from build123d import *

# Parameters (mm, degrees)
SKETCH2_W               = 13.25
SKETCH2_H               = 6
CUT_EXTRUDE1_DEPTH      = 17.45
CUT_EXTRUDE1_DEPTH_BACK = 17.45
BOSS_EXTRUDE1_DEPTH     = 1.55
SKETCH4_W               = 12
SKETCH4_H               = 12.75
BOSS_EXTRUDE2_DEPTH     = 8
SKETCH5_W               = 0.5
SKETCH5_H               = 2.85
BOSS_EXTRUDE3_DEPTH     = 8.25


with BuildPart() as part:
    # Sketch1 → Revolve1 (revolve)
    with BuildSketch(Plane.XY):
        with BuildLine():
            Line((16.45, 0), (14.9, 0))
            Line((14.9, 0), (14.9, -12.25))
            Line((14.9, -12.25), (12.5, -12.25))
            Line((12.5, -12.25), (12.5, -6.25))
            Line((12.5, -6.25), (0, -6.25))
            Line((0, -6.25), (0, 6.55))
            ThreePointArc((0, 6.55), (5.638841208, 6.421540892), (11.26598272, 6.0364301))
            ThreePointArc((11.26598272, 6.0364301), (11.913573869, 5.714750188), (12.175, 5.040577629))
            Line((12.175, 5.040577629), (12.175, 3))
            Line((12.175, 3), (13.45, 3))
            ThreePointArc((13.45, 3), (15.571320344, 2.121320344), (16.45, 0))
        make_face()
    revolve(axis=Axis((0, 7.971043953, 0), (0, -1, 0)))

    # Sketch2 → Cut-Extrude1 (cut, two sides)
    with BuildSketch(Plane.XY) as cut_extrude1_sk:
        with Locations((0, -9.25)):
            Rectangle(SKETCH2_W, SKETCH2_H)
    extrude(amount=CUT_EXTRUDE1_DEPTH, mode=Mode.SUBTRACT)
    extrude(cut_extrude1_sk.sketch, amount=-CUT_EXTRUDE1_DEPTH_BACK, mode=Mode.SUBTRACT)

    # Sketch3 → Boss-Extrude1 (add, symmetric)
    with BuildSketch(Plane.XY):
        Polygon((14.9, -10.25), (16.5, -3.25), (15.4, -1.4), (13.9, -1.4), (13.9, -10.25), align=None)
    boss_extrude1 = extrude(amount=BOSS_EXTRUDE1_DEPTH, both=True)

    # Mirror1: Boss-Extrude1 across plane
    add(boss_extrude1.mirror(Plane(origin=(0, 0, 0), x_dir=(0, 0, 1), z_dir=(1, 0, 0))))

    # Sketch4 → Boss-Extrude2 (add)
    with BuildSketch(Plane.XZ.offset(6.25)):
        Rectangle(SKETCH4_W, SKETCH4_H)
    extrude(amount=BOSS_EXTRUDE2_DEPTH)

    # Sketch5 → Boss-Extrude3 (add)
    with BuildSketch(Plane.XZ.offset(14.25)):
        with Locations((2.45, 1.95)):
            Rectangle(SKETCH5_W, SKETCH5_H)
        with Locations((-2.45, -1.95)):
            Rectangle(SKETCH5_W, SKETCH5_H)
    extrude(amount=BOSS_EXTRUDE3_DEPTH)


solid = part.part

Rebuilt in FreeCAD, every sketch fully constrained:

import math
import FreeCAD as App
import Part
import Sketcher
Q = App.Units.Quantity


def add_polygon(sketch, points):
    """Adds a closed chain of lines whose ends are joined by coincident constraints."""
    first, n = sketch.GeometryCount, len(points)
    for a, b in zip(points, points[1:] + points[:1]):
        sketch.addGeometry(Part.LineSegment(App.Vector(*a, 0), App.Vector(*b, 0)), False)
    for i in range(n):
        sketch.addConstraint(Sketcher.Constraint("Coincident", first + i, 2, first + (i + 1) % n, 1))

doc = App.newDocument("Part")
body = doc.addObject("PartDesign::Body", "Body")

# Sketch on XY plane
sketch1 = body.newObject("Sketcher::SketchObject", "Sketch")
sketch1.AttachmentSupport = (doc.getObject("XY_Plane"), [""])
sketch1.MapMode = "FlatFace"
sketch1.addGeometry(Part.LineSegment(App.Vector(14.9, 0, 0), App.Vector(16.4, 0, 0)), False)
sketch1.addGeometry(Part.ArcOfCircle(Part.Circle(App.Vector(13.5, 0, 0), App.Vector(0, 0, 1), 3), math.radians(0), math.radians(90)), False)
sketch1.addGeometry(Part.LineSegment(App.Vector(13.4, 3, 0), App.Vector(12.2, 3, 0)), False)
sketch1.addGeometry(Part.LineSegment(App.Vector(12.2, 3, 0), App.Vector(12.2, 5, 0)), False)
sketch1.addGeometry(Part.ArcOfCircle(Part.Circle(App.Vector(11.2, 5, 0), App.Vector(0, 0, 1), 1), math.radians(0), math.radians(85)), False)
sketch1.addGeometry(Part.ArcOfCircle(Part.Circle(App.Vector(0, -117.3, 0), App.Vector(0, 0, 1), 123.8), math.radians(84.78), math.radians(90)), False)
sketch1.addGeometry(Part.LineSegment(App.Vector(0, 6.5, 0), App.Vector(0, -6.2, 0)), False)
sketch1.addGeometry(Part.LineSegment(App.Vector(0, -6.2, 0), App.Vector(12.5, -6.2, 0)), False)
sketch1.addGeometry(Part.LineSegment(App.Vector(12.5, -6.2, 0), App.Vector(12.5, -12.2, 0)), False)
sketch1.addGeometry(Part.LineSegment(App.Vector(12.5, -12.2, 0), App.Vector(14.9, -12.2, 0)), False)
sketch1.addGeometry(Part.LineSegment(App.Vector(14.9, -12.2, 0), App.Vector(14.9, 0, 0)), False)
sketch1.addConstraint(Sketcher.Constraint("Coincident", 0, 2, 1, 1))
sketch1.addConstraint(Sketcher.Constraint("Tangent", 1, 2, 2, 1))
sketch1.addConstraint(Sketcher.Constraint("Coincident", 2, 2, 3, 1))
sketch1.addConstraint(Sketcher.Constraint("Tangent", 3, 2, 4, 1))
sketch1.addConstraint(Sketcher.Constraint("Tangent", 4, 2, 5, 1))
sketch1.addConstraint(Sketcher.Constraint("Coincident", 5, 2, 6, 1))
sketch1.addConstraint(Sketcher.Constraint("Coincident", 6, 2, 7, 1))
sketch1.addConstraint(Sketcher.Constraint("Coincident", 7, 2, 8, 1))
sketch1.addConstraint(Sketcher.Constraint("Coincident", 8, 2, 9, 1))
sketch1.addConstraint(Sketcher.Constraint("Coincident", 9, 2, 10, 1))
sketch1.addConstraint(Sketcher.Constraint("Coincident", 10, 2, 0, 1))
sketch1.addConstraint(Sketcher.Constraint("Horizontal", 0))
sketch1.addConstraint(Sketcher.Constraint("Horizontal", 2))
sketch1.addConstraint(Sketcher.Constraint("Vertical", 3))
sketch1.addConstraint(Sketcher.Constraint("Vertical", 6))
sketch1.addConstraint(Sketcher.Constraint("Horizontal", 7))
sketch1.addConstraint(Sketcher.Constraint("Vertical", 8))
sketch1.addConstraint(Sketcher.Constraint("Horizontal", 9))
sketch1.addConstraint(Sketcher.Constraint("Vertical", 10))
sketch1.addConstraint(Sketcher.Constraint("PointOnObject", 1, 3, -1))
sketch1.addConstraint(Sketcher.Constraint("PointOnObject", 5, 3, -2))
sketch1.addConstraint(Sketcher.Constraint("PointOnObject", 0, 2, -1))
sketch1.addConstraint(Sketcher.Constraint("PointOnObject", 5, 2, -2))
sketch1.addConstraint(Sketcher.Constraint("Radius", 1, Q("3 mm")))
sketch1.addConstraint(Sketcher.Constraint("Radius", 4, Q("1 mm")))
sketch1.addConstraint(Sketcher.Constraint("DistanceY", 8, 2, 8, 1, Q("6 mm")))
sketch1.addConstraint(Sketcher.Constraint("DistanceX", 7, 1, 7, 2, Q("12.5 mm")))
sketch1.addConstraint(Sketcher.Constraint("DistanceX", 9, 1, 9, 2, Q("2.4 mm")))
sketch1.addConstraint(Sketcher.Constraint("DistanceY", 6, 2, 6, 1, Q("12.8 mm")))
sketch1.addConstraint(Sketcher.Constraint("DistanceX", 0, 1, 0, 2, Q("1.55 mm")))
sketch1.addConstraint(Sketcher.Constraint("DistanceY", 10, 1, 10, 2, Q("12.25 mm")))
sketch1.addConstraint(Sketcher.Constraint("DistanceX", 2, 2, 2, 1, Q("1.275 mm")))
sketch1.addConstraint(Sketcher.Constraint("Radius", 5, Q("123.825521 mm")))
revolution = body.newObject("PartDesign::Revolution", "Revolution")
revolution.Profile = sketch1
revolution.ReferenceAxis = (sketch1, ["V_Axis"])
revolution.Angle = 360

# Sketch on XY plane
sketch2 = body.newObject("Sketcher::SketchObject", "Sketch001")
sketch2.AttachmentSupport = (doc.getObject("XY_Plane"), [""])
sketch2.MapMode = "FlatFace"
add_polygon(sketch2, [(-7, -6), (-7, -12), (7, -12), (7, -6)])  # lines 0-3
sketch2.addConstraint(Sketcher.Constraint("Vertical", 0))
sketch2.addConstraint(Sketcher.Constraint("Horizontal", 1))
sketch2.addConstraint(Sketcher.Constraint("Vertical", 2))
sketch2.addConstraint(Sketcher.Constraint("Horizontal", 3))
sketch2.addConstraint(Sketcher.Constraint("DistanceY", 0, 2, 0, 1, Q("6 mm")))
sketch2.addConstraint(Sketcher.Constraint("DistanceX", 1, 1, 1, 2, Q("13.25 mm")))
sketch2.addConstraint(Sketcher.Constraint("DistanceY", 0, 2, -1, 1, Q("12.25 mm")))
sketch2.addConstraint(Sketcher.Constraint("DistanceX", 0, 2, -1, 1, Q("6.625 mm")))
pocket1 = body.newObject("PartDesign::Pocket", "Pocket")
pocket1.Profile = sketch2
pocket1.Type = "ThroughAll"
pocket1.Midplane = True

# Sketch on XY plane
sketch3 = body.newObject("Sketcher::SketchObject", "Sketch002")
sketch3.AttachmentSupport = (doc.getObject("XY_Plane"), [""])
sketch3.MapMode = "FlatFace"
add_polygon(sketch3, [(14.9, -10.2), (16.5, -3.2), (15.4, -1.4), (13.9, -1.4), (13.9, -10.2)])  # lines 0-4
sketch3.addConstraint(Sketcher.Constraint("Horizontal", 2))
sketch3.addConstraint(Sketcher.Constraint("Vertical", 3))
sketch3.addConstraint(Sketcher.Constraint("Horizontal", 4))
sketch3.addConstraint(Sketcher.Constraint("DistanceX", 4, 1, 4, 2, Q("1 mm")))
sketch3.addConstraint(Sketcher.Constraint("DistanceX", 2, 2, 2, 1, Q("1.5 mm")))
sketch3.addConstraint(Sketcher.Constraint("DistanceY", 3, 2, 0, 2, Q("7 mm")))
sketch3.addConstraint(Sketcher.Constraint("DistanceY", 3, 2, 3, 1, Q("8.85 mm")))
sketch3.addConstraint(Sketcher.Constraint("DistanceX", -1, 1, 0, 2, Q("16.5 mm")))
sketch3.addConstraint(Sketcher.Constraint("DistanceX", -1, 1, 1, 2, Q("15.4 mm")))
sketch3.addConstraint(Sketcher.Constraint("DistanceY", 1, 2, -1, 1, Q("1.4 mm")))
pad1 = body.newObject("PartDesign::Pad", "Pad")
pad1.Profile = sketch3
pad1.Length = 3.1
pad1.Midplane = True
doc.recompute()

mirrored = body.newObject("PartDesign::Mirrored", "Mirrored")
mirrored.Originals = [pad1]
mirrored.MirrorPlane = (doc.getObject("YZ_Plane"), [""])
body.Tip = mirrored

# Sketch on XZ plane
sketch4 = body.newObject("Sketcher::SketchObject", "Sketch003")
sketch4.AttachmentSupport = (doc.getObject("XZ_Plane"), [""])
sketch4.MapMode = "FlatFace"
sketch4.AttachmentOffset = App.Placement(App.Vector(0, 0, 6.25), App.Rotation())
add_polygon(sketch4, [(-6, 6), (-6, -6), (6, -6), (6, 6)])  # lines 0-3
sketch4.addConstraint(Sketcher.Constraint("Vertical", 0))
sketch4.addConstraint(Sketcher.Constraint("Horizontal", 1))
sketch4.addConstraint(Sketcher.Constraint("Vertical", 2))
sketch4.addConstraint(Sketcher.Constraint("Horizontal", 3))
sketch4.addConstraint(Sketcher.Constraint("Symmetric", 0, 2, 2, 2, -1, 1))
sketch4.addConstraint(Sketcher.Constraint("DistanceX", 1, 1, 1, 2, Q("12 mm")))
sketch4.addConstraint(Sketcher.Constraint("DistanceY", 0, 2, 0, 1, Q("12.75 mm")))
pad2 = body.newObject("PartDesign::Pad", "Pad001")
pad2.Profile = sketch4
pad2.Length = 8

# Sketch on XZ plane
sketch5 = body.newObject("Sketcher::SketchObject", "Sketch004")
sketch5.AttachmentSupport = (doc.getObject("XZ_Plane"), [""])
sketch5.MapMode = "FlatFace"
sketch5.AttachmentOffset = App.Placement(App.Vector(0, 0, 14.25), App.Rotation())
add_polygon(sketch5, [(2.2, 3.4), (2.2, 0.5), (2.7, 0.5), (2.7, 3.4)])  # lines 0-3
add_polygon(sketch5, [(-2.7, -0.5), (-2.7, -3.4), (-2.2, -3.4), (-2.2, -0.5)])  # lines 4-7
sketch5.addConstraint(Sketcher.Constraint("Vertical", 0))
sketch5.addConstraint(Sketcher.Constraint("Horizontal", 1))
sketch5.addConstraint(Sketcher.Constraint("Vertical", 2))
sketch5.addConstraint(Sketcher.Constraint("Horizontal", 3))
sketch5.addConstraint(Sketcher.Constraint("Vertical", 4))
sketch5.addConstraint(Sketcher.Constraint("Horizontal", 5))
sketch5.addConstraint(Sketcher.Constraint("Vertical", 6))
sketch5.addConstraint(Sketcher.Constraint("Horizontal", 7))
sketch5.addConstraint(Sketcher.Constraint("Symmetric", 2, 2, 4, 2, -1, 1))
sketch5.addConstraint(Sketcher.Constraint("Symmetric", 0, 2, 6, 2, -1, 1))
sketch5.addConstraint(Sketcher.Constraint("DistanceX", 1, 1, 1, 2, Q("0.5 mm")))
sketch5.addConstraint(Sketcher.Constraint("DistanceY", 0, 2, 0, 1, Q("2.85 mm")))
sketch5.addConstraint(Sketcher.Constraint("DistanceX", -1, 1, 0, 2, Q("2.2 mm")))
sketch5.addConstraint(Sketcher.Constraint("DistanceY", 4, 2, 0, 2, Q("3.9 mm")))
pad3 = body.newObject("PartDesign::Pad", "Pad002")
pad3.Profile = sketch5
pad3.Length = 8.25

doc.recompute()
